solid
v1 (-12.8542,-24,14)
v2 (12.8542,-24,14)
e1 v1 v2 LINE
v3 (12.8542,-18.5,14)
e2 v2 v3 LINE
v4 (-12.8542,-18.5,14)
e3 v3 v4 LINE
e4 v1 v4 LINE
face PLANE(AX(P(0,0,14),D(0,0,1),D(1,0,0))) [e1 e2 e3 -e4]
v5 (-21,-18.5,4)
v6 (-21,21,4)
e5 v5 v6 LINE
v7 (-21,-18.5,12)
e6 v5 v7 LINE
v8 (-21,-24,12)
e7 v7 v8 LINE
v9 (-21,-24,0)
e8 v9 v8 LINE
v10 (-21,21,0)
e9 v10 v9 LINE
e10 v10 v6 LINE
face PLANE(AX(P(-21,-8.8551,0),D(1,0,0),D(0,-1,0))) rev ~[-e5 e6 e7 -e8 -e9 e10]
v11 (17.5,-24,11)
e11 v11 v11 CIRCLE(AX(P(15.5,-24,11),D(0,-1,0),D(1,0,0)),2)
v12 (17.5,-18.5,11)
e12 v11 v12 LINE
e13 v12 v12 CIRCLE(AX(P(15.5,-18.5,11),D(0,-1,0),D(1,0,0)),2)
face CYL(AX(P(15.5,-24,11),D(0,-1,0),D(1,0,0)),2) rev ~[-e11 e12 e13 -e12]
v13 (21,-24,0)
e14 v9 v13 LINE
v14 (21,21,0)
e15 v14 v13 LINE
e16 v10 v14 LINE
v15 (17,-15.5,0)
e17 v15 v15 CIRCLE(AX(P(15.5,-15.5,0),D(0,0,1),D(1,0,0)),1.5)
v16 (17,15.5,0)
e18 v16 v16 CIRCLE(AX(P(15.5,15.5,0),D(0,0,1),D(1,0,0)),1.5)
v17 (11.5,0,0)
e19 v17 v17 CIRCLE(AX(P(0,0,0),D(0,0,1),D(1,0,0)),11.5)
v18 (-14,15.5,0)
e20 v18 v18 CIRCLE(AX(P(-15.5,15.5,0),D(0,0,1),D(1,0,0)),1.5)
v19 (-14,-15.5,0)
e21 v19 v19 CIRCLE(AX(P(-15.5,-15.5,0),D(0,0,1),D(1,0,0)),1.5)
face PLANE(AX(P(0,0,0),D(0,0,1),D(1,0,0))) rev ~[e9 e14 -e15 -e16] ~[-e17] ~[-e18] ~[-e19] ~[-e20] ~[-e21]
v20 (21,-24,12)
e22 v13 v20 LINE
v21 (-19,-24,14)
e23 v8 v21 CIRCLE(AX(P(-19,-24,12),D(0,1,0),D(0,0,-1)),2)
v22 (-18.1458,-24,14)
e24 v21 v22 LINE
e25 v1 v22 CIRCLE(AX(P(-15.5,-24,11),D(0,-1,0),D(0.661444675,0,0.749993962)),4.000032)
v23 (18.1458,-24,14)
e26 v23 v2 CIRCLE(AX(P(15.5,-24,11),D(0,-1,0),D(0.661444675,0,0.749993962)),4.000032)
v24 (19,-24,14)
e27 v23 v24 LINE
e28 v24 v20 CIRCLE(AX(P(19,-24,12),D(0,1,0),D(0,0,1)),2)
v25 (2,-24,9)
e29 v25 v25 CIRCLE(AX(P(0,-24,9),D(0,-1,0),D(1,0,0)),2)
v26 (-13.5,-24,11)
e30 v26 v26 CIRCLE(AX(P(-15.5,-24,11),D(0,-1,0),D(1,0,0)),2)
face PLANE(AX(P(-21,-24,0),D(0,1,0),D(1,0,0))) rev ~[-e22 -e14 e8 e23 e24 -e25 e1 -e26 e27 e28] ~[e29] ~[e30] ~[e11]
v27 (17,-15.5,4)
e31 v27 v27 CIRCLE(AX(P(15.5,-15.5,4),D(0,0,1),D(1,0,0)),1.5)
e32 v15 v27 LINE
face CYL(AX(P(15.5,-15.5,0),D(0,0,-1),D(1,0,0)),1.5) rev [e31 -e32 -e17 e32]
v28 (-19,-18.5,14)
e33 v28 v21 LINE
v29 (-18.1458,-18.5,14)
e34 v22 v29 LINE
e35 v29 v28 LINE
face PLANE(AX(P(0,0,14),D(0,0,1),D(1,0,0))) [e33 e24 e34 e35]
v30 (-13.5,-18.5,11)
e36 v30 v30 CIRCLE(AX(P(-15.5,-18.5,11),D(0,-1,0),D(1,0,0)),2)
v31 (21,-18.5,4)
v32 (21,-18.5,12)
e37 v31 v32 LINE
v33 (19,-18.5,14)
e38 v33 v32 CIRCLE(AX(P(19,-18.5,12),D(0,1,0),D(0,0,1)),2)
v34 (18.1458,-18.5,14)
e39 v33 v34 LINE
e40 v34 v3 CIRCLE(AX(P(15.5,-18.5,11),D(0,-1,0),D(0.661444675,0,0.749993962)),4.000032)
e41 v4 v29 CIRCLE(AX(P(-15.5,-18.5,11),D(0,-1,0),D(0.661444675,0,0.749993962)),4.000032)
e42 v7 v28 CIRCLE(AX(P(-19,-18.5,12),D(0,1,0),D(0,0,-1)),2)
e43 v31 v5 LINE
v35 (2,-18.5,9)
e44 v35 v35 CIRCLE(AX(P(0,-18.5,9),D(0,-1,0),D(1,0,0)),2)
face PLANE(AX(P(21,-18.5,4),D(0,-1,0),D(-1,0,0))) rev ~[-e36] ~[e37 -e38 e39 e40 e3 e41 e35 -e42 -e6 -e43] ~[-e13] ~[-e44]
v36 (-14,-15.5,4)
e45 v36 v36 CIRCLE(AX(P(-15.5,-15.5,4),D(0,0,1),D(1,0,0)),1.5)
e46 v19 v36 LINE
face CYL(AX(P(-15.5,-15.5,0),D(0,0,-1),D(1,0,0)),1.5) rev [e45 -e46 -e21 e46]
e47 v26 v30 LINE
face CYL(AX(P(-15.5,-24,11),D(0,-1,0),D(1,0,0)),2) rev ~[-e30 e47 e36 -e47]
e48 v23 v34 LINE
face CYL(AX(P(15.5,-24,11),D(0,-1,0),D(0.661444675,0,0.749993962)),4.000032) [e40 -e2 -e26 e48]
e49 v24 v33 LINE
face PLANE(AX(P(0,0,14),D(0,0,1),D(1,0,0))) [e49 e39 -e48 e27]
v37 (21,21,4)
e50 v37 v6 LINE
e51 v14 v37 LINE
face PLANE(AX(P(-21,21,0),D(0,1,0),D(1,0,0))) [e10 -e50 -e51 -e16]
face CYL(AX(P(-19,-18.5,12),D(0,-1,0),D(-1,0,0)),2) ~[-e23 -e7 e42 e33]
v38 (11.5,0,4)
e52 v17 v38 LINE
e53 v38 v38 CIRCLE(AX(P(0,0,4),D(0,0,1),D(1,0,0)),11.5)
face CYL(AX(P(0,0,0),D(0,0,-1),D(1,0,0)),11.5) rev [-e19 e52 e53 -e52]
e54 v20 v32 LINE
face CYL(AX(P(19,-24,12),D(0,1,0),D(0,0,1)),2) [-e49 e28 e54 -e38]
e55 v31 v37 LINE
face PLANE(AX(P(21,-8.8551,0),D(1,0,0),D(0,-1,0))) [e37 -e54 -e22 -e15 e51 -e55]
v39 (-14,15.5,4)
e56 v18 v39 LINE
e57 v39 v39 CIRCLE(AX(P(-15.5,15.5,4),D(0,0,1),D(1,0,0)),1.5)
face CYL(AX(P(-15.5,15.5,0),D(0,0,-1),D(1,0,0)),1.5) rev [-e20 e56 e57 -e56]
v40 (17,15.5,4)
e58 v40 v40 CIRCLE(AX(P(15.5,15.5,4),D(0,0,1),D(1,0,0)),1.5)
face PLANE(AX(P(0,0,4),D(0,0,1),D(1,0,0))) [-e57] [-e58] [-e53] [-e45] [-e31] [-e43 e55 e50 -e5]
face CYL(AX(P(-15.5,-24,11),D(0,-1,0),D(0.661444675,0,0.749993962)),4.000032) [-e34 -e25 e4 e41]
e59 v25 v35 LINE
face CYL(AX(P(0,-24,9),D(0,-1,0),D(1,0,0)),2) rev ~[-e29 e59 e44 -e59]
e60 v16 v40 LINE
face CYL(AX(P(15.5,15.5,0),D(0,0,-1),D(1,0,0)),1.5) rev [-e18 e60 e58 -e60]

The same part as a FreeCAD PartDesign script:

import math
import FreeCAD as App
import Part
import Sketcher

V = App.Vector
Q = App.Units.Quantity


def edges_at(feature, points):
    """Names of the edges that pass closest to the given points."""
    edges = feature.Shape.Edges
    near = lambda p: min(range(len(edges)), key=lambda i: edges[i].distToShape(Part.Vertex(*p))[0])
    return sorted({f"Edge{near(p) + 1}" for p in points})


def add_polygon(sketch, points):
    """Adds a closed chain of lines whose ends are joined by coincident constraints."""
    first, n = sketch.GeometryCount, len(points)
    for a, b in zip(points, points[1:] + points[:1]):
        sketch.addGeometry(Part.LineSegment(App.Vector(*a, 0), App.Vector(*b, 0)), False)
    for i in range(n):
        sketch.addConstraint(Sketcher.Constraint("Coincident", first + i, 2, first + (i + 1) % n, 1))

doc = App.newDocument("Part")
body = doc.addObject("PartDesign::Body", "Body")

# Sketch on XY plane
sketch1 = doc.addObject("Sketcher::SketchObject", "Sketch")
body.addObject(sketch1)
sketch1.AttachmentSupport = (doc.XY_Plane, [""])
sketch1.MapMode = "FlatFace"
add_polygon(sketch1, [(-21, 21), (-21, -24), (21, -24), (21, 21)])  # lines 0-3
sketch1.addGeometry(Part.Circle(V(-15.5, -15.5, 0), V(0, 0, 1), 1.5), False)  # 4
sketch1.addGeometry(Part.Circle(V(15.5, -15.5, 0), V(0, 0, 1), 1.5), False)  # 5
sketch1.addGeometry(Part.Circle(V(-15.5, 15.5, 0), V(0, 0, 1), 1.5), False)  # 6
sketch1.addGeometry(Part.Circle(V(0, 0, 0), V(0, 0, 1), 11.5), False)  # 7
sketch1.addGeometry(Part.Circle(V(15.5, 15.5, 0), V(0, 0, 1), 1.5), False)  # 8
sketch1.addConstraint([
    Sketcher.Constraint("Vertical", 0),
    Sketcher.Constraint("Horizontal", 1),
    Sketcher.Constraint("Vertical", 2),
    Sketcher.Constraint("Horizontal", 3),
    Sketcher.Constraint("Coincident", 7, 3, -1, 1),
    Sketcher.Constraint("Equal", 4, 5),
    Sketcher.Constraint("Equal", 5, 6),
    Sketcher.Constraint("Equal", 6, 8),
    Sketcher.Constraint("Symmetric", 5, 3, 6, 3, -1, 1),
    Sketcher.Constraint("Symmetric", 4, 3, 8, 3, -1, 1),
    Sketcher.Constraint("Symmetric", 4, 3, 5, 3, -2),
    Sketcher.Constraint("Diameter", 4, Q("3 mm")),
    Sketcher.Constraint("Diameter", 7, Q("23 mm")),
    Sketcher.Constraint("DistanceY", 0, 2, -1, 1, Q("24 mm")),
    Sketcher.Constraint("DistanceY", 0, 2, 4, 3, Q("8.5 mm")),
    Sketcher.Constraint("DistanceX", 1, 1, 1, 2, Q("42 mm")),
    Sketcher.Constraint("DistanceY", 0, 2, 0, 1, Q("45 mm")),
    Sketcher.Constraint("DistanceX", 0, 2, -1, 1, Q("21 mm")),
    Sketcher.Constraint("DistanceX", 4, 3, 5, 3, Q("31 mm")),
])
pad1 = doc.addObject("PartDesign::Pad", "Pad")
body.addObject(pad1)
pad1.Profile = sketch1
pad1.Length = 4

# Sketch on XY plane
sketch2 = doc.addObject("Sketcher::SketchObject", "Sketch001")
body.addObject(sketch2)
sketch2.AttachmentSupport = (doc.XY_Plane, [""])
sketch2.MapMode = "FlatFace"
sketch2.AttachmentOffset = App.Placement(V(0, 0, 4), App.Rotation())
add_polygon(sketch2, [(-21, -18.5), (-21, -24), (21, -24), (21, -18.5)])  # lines 0-3
sketch2.addConstraint([
    Sketcher.Constraint("Vertical", 0),
    Sketcher.Constraint("Horizontal", 1),
    Sketcher.Constraint("Vertical", 2),
    Sketcher.Constraint("Horizontal", 3),
    Sketcher.Constraint("DistanceY", 0, 2, 0, 1, Q("5.5 mm")),
    Sketcher.Constraint("DistanceX", 1, 1, 1, 2, Q("42 mm")),
    Sketcher.Constraint("DistanceX", 0, 2, -1, 1, Q("21 mm")),
    Sketcher.Constraint("DistanceY", 0, 2, -1, 1, Q("24 mm")),
])
pad2 = doc.addObject("PartDesign::Pad", "Pad001")
body.addObject(pad2)
pad2.Profile = sketch2
pad2.Length = 10

# Sketch on XZ plane
sketch3 = doc.addObject("Sketcher::SketchObject", "Sketch002")
body.addObject(sketch3)
sketch3.AttachmentSupport = (doc.XZ_Plane, [""])
sketch3.MapMode = "FlatFace"
sketch3.AttachmentOffset = App.Placement(V(0, 0, 24), App.Rotation())
sketch3.addGeometry([
    Part.LineSegment(V(-18.1458, 14, 0), V(-12.8542, 14, 0)),
    Part.ArcOfCircle(Part.Circle(V(-15.5, 11, 0), V(0, 0, 1), 4.000032), math.radians(48.589855), math.radians(131.410145)),
    Part.ArcOfCircle(Part.Circle(V(15.5, 11, 0), V(0, 0, 1), 4.000032), math.radians(48.589855), math.radians(131.410145)),
    Part.LineSegment(V(12.8542, 14, 0), V(18.1458, 14, 0)),
], False)
sketch3.addConstraint([
    Sketcher.Constraint("Coincident", 0, 1, 1, 2),
    Sketcher.Constraint("Coincident", 1, 1, 0, 2),
    Sketcher.Constraint("Coincident", 2, 1, 3, 2),
    Sketcher.Constraint("Coincident", 3, 1, 2, 2),
    Sketcher.Constraint("Horizontal", 0),
    Sketcher.Constraint("Horizontal", 3),
    Sketcher.Constraint("Equal", 1, 2),
    Sketcher.Constraint("Symmetric", 1, 3, 2, 3, -2),
    Sketcher.Constraint("Horizontal", 1, 1, 2, 1),
    Sketcher.Constraint("Radius", 1, Q("4 mm")),
    Sketcher.Constraint("DistanceY", -1, 1, 1, 3, Q("11 mm")),
    Sketcher.Constraint("DistanceY", -1, 1, 0, 1, Q("14 mm")),
    Sketcher.Constraint("DistanceX", 1, 3, 2, 3, Q("31 mm")),
])
pad3 = doc.addObject("PartDesign::Pad", "Pad002")
body.addObject(pad3)
pad3.Profile = sketch3
pad3.Length = 5.5
pad3.Reversed = True
doc.recompute()

fillet = doc.addObject("PartDesign::Fillet", "Fillet")
body.addObject(fillet)
fillet.Base = (pad3, edges_at(pad3, [(-21, -21.25, 14), (21, -21.25, 14)]))
fillet.Radius = 2

# Sketch on XZ plane
sketch4 = doc.addObject("Sketcher::SketchObject", "Sketch003")
body.addObject(sketch4)
sketch4.AttachmentSupport = (doc.XZ_Plane, [""])
sketch4.MapMode = "FlatFace"
sketch4.AttachmentOffset = App.Placement(V(0, 0, 24), App.Rotation())
sketch4.addGeometry([
    Part.Circle(V(-15.5, 11, 0), V(0, 0, 1), 2),
    Part.Circle(V(15.5, 11, 0), V(0, 0, 1), 2),
    Part.Circle(V(0, 9, 0), V(0, 0, 1), 2),
], False)
sketch4.addConstraint([
    Sketcher.Constraint("Equal", 0, 1),
    Sketcher.Constraint("Equal", 1, 2),
    Sketcher.Constraint("Symmetric", 0, 3, 1, 3, -2),
    Sketcher.Constraint("PointOnObject", 2, 3, -2),
    Sketcher.Constraint("Diameter", 0, Q("4 mm")),
    Sketcher.Constraint("DistanceY", -1, 1, 0, 3, Q("11 mm")),
    Sketcher.Constraint("DistanceY", -1, 1, 2, 3, Q("9 mm")),
    Sketcher.Constraint("DistanceX", 0, 3, 1, 3, Q("31 mm")),
])
pocket1 = doc.addObject("PartDesign::Pocket", "Pocket")
body.addObject(pocket1)
pocket1.Profile = sketch4
pocket1.Length = 5.5

doc.recompute()
